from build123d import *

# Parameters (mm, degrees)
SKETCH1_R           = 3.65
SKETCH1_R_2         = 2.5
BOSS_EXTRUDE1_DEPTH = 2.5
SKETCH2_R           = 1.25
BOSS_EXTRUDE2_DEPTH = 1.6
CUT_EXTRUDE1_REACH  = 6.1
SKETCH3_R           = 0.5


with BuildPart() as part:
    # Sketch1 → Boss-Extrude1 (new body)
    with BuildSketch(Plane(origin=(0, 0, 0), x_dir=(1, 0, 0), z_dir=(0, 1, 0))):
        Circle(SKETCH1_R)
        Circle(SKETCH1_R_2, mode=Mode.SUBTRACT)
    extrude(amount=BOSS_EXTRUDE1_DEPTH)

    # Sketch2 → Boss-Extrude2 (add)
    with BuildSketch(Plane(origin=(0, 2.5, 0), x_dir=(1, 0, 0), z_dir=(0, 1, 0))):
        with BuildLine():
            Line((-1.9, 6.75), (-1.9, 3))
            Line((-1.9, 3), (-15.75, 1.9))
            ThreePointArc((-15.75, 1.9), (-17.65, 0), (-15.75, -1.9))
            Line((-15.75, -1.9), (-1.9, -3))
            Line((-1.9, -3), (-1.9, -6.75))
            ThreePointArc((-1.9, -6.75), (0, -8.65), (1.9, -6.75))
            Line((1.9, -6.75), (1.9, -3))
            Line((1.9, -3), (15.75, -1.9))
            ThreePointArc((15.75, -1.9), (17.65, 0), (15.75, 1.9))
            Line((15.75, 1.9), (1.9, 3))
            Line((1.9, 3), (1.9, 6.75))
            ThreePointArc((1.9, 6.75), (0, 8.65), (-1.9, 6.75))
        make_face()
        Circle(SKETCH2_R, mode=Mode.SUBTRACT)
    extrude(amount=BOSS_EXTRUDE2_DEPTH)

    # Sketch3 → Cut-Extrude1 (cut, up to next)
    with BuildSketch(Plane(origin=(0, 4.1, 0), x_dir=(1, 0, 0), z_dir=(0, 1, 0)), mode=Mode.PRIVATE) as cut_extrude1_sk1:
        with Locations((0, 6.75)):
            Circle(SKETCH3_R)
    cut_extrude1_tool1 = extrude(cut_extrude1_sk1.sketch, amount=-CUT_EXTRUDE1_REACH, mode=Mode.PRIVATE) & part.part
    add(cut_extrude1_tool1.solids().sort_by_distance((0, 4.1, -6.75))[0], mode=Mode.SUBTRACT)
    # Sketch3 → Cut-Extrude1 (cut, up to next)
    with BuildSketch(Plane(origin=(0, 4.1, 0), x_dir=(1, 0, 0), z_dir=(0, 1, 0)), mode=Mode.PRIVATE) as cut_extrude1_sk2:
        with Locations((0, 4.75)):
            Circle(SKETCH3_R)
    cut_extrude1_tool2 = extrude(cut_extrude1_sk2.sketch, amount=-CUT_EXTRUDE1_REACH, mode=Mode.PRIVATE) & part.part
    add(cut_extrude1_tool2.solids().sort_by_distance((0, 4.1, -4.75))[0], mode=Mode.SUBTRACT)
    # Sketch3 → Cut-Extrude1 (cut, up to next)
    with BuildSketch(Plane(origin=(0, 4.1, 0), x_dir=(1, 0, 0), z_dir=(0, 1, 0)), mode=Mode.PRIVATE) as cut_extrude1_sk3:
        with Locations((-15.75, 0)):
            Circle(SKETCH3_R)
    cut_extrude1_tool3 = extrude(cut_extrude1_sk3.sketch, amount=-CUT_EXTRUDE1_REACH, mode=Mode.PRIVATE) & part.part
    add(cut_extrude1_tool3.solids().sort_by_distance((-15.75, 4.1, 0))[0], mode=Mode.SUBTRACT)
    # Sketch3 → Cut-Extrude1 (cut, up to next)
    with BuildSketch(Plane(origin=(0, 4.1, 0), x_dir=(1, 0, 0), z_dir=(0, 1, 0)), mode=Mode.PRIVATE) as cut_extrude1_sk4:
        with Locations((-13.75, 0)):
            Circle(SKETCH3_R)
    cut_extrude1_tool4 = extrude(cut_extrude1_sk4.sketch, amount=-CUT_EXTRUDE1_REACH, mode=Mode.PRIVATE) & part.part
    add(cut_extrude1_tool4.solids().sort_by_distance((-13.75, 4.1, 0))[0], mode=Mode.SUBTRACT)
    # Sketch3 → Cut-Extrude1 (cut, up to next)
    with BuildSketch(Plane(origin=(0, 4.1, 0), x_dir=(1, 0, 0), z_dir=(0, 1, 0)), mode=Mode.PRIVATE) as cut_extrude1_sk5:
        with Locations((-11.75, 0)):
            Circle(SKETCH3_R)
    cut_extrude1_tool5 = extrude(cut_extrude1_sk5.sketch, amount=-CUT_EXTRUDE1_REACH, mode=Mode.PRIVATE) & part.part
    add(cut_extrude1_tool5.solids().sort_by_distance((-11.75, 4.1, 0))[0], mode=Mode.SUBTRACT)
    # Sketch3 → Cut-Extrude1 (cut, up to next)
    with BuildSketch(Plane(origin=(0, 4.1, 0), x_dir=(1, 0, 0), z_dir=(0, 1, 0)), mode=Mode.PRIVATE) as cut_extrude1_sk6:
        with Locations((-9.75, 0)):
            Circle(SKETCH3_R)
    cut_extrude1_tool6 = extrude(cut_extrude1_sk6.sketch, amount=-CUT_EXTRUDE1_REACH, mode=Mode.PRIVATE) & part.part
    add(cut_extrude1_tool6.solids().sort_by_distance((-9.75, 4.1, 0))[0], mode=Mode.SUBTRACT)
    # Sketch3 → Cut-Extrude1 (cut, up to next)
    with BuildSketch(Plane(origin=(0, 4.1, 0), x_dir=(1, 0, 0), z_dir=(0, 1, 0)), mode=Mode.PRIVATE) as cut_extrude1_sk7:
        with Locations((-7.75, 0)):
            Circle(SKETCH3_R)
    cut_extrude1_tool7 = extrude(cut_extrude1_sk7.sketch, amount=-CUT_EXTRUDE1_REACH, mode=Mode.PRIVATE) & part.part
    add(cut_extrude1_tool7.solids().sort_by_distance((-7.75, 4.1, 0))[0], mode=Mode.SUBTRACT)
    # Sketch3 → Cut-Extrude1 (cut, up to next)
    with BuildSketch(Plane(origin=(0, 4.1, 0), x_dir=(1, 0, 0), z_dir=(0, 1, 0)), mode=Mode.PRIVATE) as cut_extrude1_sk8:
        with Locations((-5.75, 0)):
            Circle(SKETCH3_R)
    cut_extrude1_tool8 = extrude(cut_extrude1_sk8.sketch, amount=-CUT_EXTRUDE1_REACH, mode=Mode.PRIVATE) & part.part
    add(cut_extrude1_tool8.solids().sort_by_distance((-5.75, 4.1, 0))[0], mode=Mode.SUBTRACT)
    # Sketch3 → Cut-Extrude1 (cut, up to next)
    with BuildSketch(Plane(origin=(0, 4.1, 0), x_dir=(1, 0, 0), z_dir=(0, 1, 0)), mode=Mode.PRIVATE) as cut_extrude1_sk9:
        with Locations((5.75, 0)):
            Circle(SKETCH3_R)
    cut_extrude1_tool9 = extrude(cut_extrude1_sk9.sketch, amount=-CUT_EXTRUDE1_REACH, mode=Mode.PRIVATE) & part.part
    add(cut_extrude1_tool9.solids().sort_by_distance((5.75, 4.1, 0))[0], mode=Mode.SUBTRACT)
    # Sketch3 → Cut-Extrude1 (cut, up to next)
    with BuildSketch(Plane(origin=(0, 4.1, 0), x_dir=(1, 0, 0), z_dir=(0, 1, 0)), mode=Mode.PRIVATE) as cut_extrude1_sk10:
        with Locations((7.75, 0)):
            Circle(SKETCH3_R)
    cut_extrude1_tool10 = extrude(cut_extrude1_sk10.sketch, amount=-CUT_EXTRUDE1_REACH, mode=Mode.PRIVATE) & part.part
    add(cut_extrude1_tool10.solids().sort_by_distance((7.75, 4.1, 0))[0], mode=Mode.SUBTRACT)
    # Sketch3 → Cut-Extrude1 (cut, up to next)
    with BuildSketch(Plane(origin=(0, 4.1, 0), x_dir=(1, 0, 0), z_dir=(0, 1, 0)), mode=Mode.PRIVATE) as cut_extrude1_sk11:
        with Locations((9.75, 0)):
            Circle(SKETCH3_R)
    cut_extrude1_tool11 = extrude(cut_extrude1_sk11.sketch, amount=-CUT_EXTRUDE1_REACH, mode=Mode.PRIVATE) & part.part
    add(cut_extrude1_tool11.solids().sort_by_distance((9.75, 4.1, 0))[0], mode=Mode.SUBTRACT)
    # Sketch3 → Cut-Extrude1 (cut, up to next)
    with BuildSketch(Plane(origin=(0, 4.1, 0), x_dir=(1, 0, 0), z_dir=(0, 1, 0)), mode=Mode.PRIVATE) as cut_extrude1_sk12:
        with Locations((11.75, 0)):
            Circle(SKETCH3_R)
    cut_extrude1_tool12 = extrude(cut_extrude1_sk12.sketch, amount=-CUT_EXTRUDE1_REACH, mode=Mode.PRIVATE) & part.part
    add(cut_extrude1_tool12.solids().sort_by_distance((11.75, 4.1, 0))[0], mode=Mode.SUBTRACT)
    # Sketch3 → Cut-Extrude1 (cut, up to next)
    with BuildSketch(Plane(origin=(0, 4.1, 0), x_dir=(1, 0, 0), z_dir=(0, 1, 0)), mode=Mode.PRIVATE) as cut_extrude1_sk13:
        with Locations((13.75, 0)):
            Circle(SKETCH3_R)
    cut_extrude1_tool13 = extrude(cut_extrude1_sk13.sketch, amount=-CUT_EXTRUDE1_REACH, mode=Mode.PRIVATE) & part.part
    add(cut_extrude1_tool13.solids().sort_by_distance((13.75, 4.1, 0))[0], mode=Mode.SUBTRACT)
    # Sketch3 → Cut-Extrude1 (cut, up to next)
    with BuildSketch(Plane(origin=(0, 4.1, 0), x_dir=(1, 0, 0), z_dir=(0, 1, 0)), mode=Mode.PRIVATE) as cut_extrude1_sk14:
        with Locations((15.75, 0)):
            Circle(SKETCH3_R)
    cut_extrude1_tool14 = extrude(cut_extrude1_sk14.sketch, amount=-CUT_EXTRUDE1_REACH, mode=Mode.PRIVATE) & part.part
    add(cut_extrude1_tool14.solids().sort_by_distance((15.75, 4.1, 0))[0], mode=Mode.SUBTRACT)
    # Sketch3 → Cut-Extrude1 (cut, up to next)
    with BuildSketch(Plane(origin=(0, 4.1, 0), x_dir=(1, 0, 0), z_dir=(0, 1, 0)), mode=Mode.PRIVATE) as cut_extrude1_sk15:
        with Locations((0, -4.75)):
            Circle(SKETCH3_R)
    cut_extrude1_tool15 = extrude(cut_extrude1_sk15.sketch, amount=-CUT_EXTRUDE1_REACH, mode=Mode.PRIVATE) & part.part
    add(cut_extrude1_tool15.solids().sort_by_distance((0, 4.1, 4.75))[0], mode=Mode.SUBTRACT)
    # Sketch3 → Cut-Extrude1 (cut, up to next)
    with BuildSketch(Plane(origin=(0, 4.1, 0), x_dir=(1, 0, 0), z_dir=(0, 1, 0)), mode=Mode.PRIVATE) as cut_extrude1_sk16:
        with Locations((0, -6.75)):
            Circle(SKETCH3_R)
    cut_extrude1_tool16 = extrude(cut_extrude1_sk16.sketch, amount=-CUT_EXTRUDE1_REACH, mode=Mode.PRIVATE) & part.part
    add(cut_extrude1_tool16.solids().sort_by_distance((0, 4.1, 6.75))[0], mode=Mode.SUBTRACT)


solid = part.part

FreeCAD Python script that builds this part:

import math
import FreeCAD as App
import Part
import Sketcher
from FreeCAD import Vector
Q = App.Units.Quantity

doc = App.newDocument("Part")
body = doc.addObject("PartDesign::Body", "Body")

# Sketch on XZ plane
sketch1 = body.newObject("Sketcher::SketchObject", "Sketch")
sketch1.AttachmentSupport = (doc.getObject("XZ_Plane"), [""])
sketch1.MapMode = "FlatFace"
sketch1.addGeometry(Part.Circle(Vector(0, 0, 0), Vector(0, 0, 1), 3.6), False)
sketch1.addGeometry(Part.Circle(Vector(0, 0, 0), Vector(0, 0, 1), 2.5), False)
sketch1.addConstraint(Sketcher.Constraint("Coincident", 0, 3, -1, 1))
sketch1.addConstraint(Sketcher.Constraint("Coincident", 1, 3, -1, 1))
sketch1.addConstraint(Sketcher.Constraint("Diameter", 1, Q("5 mm")))
sketch1.addConstraint(Sketcher.Constraint("Diameter", 0, Q("7.3 mm")))
pad1 = body.newObject("PartDesign::Pad", "Pad")
pad1.Profile = sketch1
pad1.Length = 2.5
pad1.Reversed = True

# Sketch on XZ plane
sketch2 = body.newObject("Sketcher::SketchObject", "Sketch001")
sketch2.AttachmentSupport = (doc.getObject("XZ_Plane"), [""])
sketch2.MapMode = "FlatFace"
sketch2.AttachmentOffset = App.Placement(Vector(0, 0, -2.5), App.Rotation())
sketch2.addGeometry(Part.LineSegment(Vector(-1.9, -6.8, 0), Vector(-1.9, -3, 0)), False)
sketch2.addGeometry(Part.LineSegment(Vector(-1.9, -3, 0), Vector(-15.8, -1.9, 0)), False)
sketch2.addGeometry(Part.ArcOfCircle(Part.Circle(Vector(-15.8, 0, 0), Vector(0, 0, 1), 1.9), math.radians(90), math.radians(270)), False)
sketch2.addGeometry(Part.LineSegment(Vector(-15.8, 1.9, 0), Vector(-1.9, 3, 0)), False)
sketch2.addGeometry(Part.LineSegment(Vector(-1.9, 3, 0), Vector(-1.9, 6.8, 0)), False)
sketch2.addGeometry(Part.ArcOfCircle(Part.Circle(Vector(0, 6.8, 0), Vector(0, 0, 1), 1.9), math.radians(0), math.radians(180)), False)
sketch2.addGeometry(Part.LineSegment(Vector(1.9, 6.8, 0), Vector(1.9, 3, 0)), False)
sketch2.addGeometry(Part.LineSegment(Vector(1.9, 3, 0), Vector(15.8, 1.9, 0)), False)
sketch2.addGeometry(Part.ArcOfCircle(Part.Circle(Vector(15.8, 0, 0), Vector(0, 0, 1), 1.9), math.radians(-90), math.radians(90)), False)
sketch2.addGeometry(Part.LineSegment(Vector(15.8, -1.9, 0), Vector(1.9, -3, 0)), False)
sketch2.addGeometry(Part.LineSegment(Vector(1.9, -3, 0), Vector(1.9, -6.8, 0)), False)
sketch2.addGeometry(Part.ArcOfCircle(Part.Circle(Vector(0, -6.8, 0), Vector(0, 0, 1), 1.9), math.radians(180), math.radians(360)), False)
sketch2.addGeometry(Part.Circle(Vector(0, 0, 0), Vector(0, 0, 1), 1.2), False)
sketch2.addConstraint(Sketcher.Constraint("Coincident", 0, 2, 1, 1))
sketch2.addConstraint(Sketcher.Constraint("Coincident", 1, 2, 2, 2))
sketch2.addConstraint(Sketcher.Constraint("Coincident", 2, 1, 3, 1))
sketch2.addConstraint(Sketcher.Constraint("Coincident", 3, 2, 4, 1))
sketch2.addConstraint(Sketcher.Constraint("Tangent", 4, 2, 5, 2))
sketch2.addConstraint(Sketcher.Constraint("Tangent", 5, 1, 6, 1))
sketch2.addConstraint(Sketcher.Constraint("Coincident", 6, 2, 7, 1))
sketch2.addConstraint(Sketcher.Constraint("Coincident", 7, 2, 8, 2))
sketch2.addConstraint(Sketcher.Constraint("Coincident", 8, 1, 9, 1))
sketch2.addConstraint(Sketcher.Constraint("Coincident", 9, 2, 10, 1))
sketch2.addConstraint(Sketcher.Constraint("Tangent", 10, 2, 11, 2))
sketch2.addConstraint(Sketcher.Constraint("Tangent", 11, 1, 0, 1))
sketch2.addConstraint(Sketcher.Constraint("Vertical", 0))
sketch2.addConstraint(Sketcher.Constraint("Vertical", 4))
sketch2.addConstraint(Sketcher.Constraint("Vertical", 6))
sketch2.addConstraint(Sketcher.Constraint("Vertical", 10))
sketch2.addConstraint(Sketcher.Constraint("Coincident", 12, 3, -1, 1))
sketch2.addConstraint(Sketcher.Constraint("Equal", 2, 5))
sketch2.addConstraint(Sketcher.Constraint("Equal", 5, 8))
sketch2.addConstraint(Sketcher.Constraint("Equal", 8, 11))
sketch2.addConstraint(Sketcher.Constraint("Symmetric", 2, 3, 8, 3, -1, 1))
sketch2.addConstraint(Sketcher.Constraint("Symmetric", 5, 3, 11, 3, -1, 1))
sketch2.addConstraint(Sketcher.Constraint("Symmetric", 3, 2, 6, 2, -2))
sketch2.addConstraint(Sketcher.Constraint("Symmetric", 2, 1, 7, 2, -2))
sketch2.addConstraint(Sketcher.Constraint("Parallel", 1, 7))
sketch2.addConstraint(Sketcher.Constraint("Parallel", 3, 9))
sketch2.addConstraint(Sketcher.Constraint("Horizontal", 0, 2, 9, 2))
sketch2.addConstraint(Sketcher.Constraint("Vertical", 2, 3, 1, 2))
sketch2.addConstraint(Sketcher.Constraint("Vertical", 1, 2, 2, 1))
sketch2.addConstraint(Sketcher.Constraint("Diameter", 12, Q("2.5 mm")))
sketch2.addConstraint(Sketcher.Constraint("Radius", 2, Q("1.9 mm")))
sketch2.addConstraint(Sketcher.Constraint("DistanceY", 0, 2, -1, 1, Q("3 mm")))
sketch2.addConstraint(Sketcher.Constraint("DistanceY", 0, 1, 0, 2, Q("3.75 mm")))
sketch2.addConstraint(Sketcher.Constraint("DistanceX", 2, 3, 8, 3, Q("31.5 mm")))
pad2 = body.newObject("PartDesign::Pad", "Pad001")
pad2.Profile = sketch2
pad2.Length = 1.6
pad2.Reversed = True

# Sketch on XZ plane
sketch3 = body.newObject("Sketcher::SketchObject", "Sketch002")
sketch3.AttachmentSupport = (doc.getObject("XZ_Plane"), [""])
sketch3.MapMode = "FlatFace"
sketch3.AttachmentOffset = App.Placement(Vector(0, 0, -4.1), App.Rotation())
sketch3.addGeometry(Part.Circle(Vector(0, -6.8, 0), Vector(0, 0, 1), 0.5), False)
sketch3.addConstraint(Sketcher.Constraint("PointOnObject", 0, 3, -2))
sketch3.addConstraint(Sketcher.Constraint("Diameter", 0, Q("1 mm")))
sketch3.addConstraint(Sketcher.Constraint("DistanceY", 0, 3, -1, 1, Q("6.75 mm")))
pocket1 = body.newObject("PartDesign::Pocket", "Pocket")
pocket1.Profile = sketch3
pocket1.Type = "UpToFirst"
pocket1.Reversed = True

# Sketch on XZ plane
sketch4 = body.newObject("Sketcher::SketchObject", "Sketch003")
sketch4.AttachmentSupport = (doc.getObject("XZ_Plane"), [""])
sketch4.MapMode = "FlatFace"
sketch4.AttachmentOffset = App.Placement(Vector(0, 0, -4.1), App.Rotation())
sketch4.addGeometry(Part.Circle(Vector(0, -4.8, 0), Vector(0, 0, 1), 0.5), False)
sketch4.addConstraint(Sketcher.Constraint("PointOnObject", 0, 3, -2))
sketch4.addConstraint(Sketcher.Constraint("Diameter", 0, Q("1 mm")))
sketch4.addConstraint(Sketcher.Constraint("DistanceY", 0, 3, -1, 1, Q("4.75 mm")))
pocket2 = body.newObject("PartDesign::Pocket", "Pocket001")
pocket2.Profile = sketch4
pocket2.Type = "UpToFirst"
pocket2.Reversed = True

# Sketch on XZ plane
sketch5 = body.newObject("Sketcher::SketchObject", "Sketch004")
sketch5.AttachmentSupport = (doc.getObject("XZ_Plane"), [""])
sketch5.MapMode = "FlatFace"
sketch5.AttachmentOffset = App.Placement(Vector(0, 0, -4.1), App.Rotation())
sketch5.addGeometry(Part.Circle(Vector(-15.8, 0, 0), Vector(0, 0, 1), 0.5), False)
sketch5.addConstraint(Sketcher.Constraint("PointOnObject", 0, 3, -1))
sketch5.addConstraint(Sketcher.Constraint("Diameter", 0, Q("1 mm")))
sketch5.addConstraint(Sketcher.Constraint("DistanceX", 0, 3, -1, 1, Q("15.75 mm")))
pocket3 = body.newObject("PartDesign::Pocket", "Pocket002")
pocket3.Profile = sketch5
pocket3.Type = "UpToFirst"
pocket3.Reversed = True

# Sketch on XZ plane
sketch6 = body.newObject("Sketcher::SketchObject", "Sketch005")
sketch6.AttachmentSupport = (doc.getObject("XZ_Plane"), [""])
sketch6.MapMode = "FlatFace"
sketch6.AttachmentOffset = App.Placement(Vector(0, 0, -4.1), App.Rotation())
sketch6.addGeometry(Part.Circle(Vector(-13.8, 0, 0), Vector(0, 0, 1), 0.5), False)
sketch6.addConstraint(Sketcher.Constraint("PointOnObject", 0, 3, -1))
sketch6.addConstraint(Sketcher.Constraint("Diameter", 0, Q("1 mm")))
sketch6.addConstraint(Sketcher.Constraint("DistanceX", 0, 3, -1, 1, Q("13.75 mm")))
pocket4 = body.newObject("PartDesign::Pocket", "Pocket003")
pocket4.Profile = sketch6
pocket4.Type = "UpToFirst"
pocket4.Reversed = True

# Sketch on XZ plane
sketch7 = body.newObject("Sketcher::SketchObject", "Sketch006")
sketch7.AttachmentSupport = (doc.getObject("XZ_Plane"), [""])
sketch7.MapMode = "FlatFace"
sketch7.AttachmentOffset = App.Placement(Vector(0, 0, -4.1), App.Rotation())
sketch7.addGeometry(Part.Circle(Vector(-11.8, 0, 0), Vector(0, 0, 1), 0.5), False)
sketch7.addConstraint(Sketcher.Constraint("PointOnObject", 0, 3, -1))
sketch7.addConstraint(Sketcher.Constraint("Diameter", 0, Q("1 mm")))
sketch7.addConstraint(Sketcher.Constraint("DistanceX", 0, 3, -1, 1, Q("11.75 mm")))
pocket5 = body.newObject("PartDesign::Pocket", "Pocket004")
pocket5.Profile = sketch7
pocket5.Type = "UpToFirst"
pocket5.Reversed = True

# Sketch on XZ plane
sketch8 = body.newObject("Sketcher::SketchObject", "Sketch007")
sketch8.AttachmentSupport = (doc.getObject("XZ_Plane"), [""])
sketch8.MapMode = "FlatFace"
sketch8.AttachmentOffset = App.Placement(Vector(0, 0, -4.1), App.Rotation())
sketch8.addGeometry(Part.Circle(Vector(-9.8, 0, 0), Vector(0, 0, 1), 0.5), False)
sketch8.addConstraint(Sketcher.Constraint("PointOnObject", 0, 3, -1))
sketch8.addConstraint(Sketcher.Constraint("Diameter", 0, Q("1 mm")))
sketch8.addConstraint(Sketcher.Constraint("DistanceX", 0, 3, -1, 1, Q("9.75 mm")))
pocket6 = body.newObject("PartDesign::Pocket", "Pocket005")
pocket6.Profile = sketch8
pocket6.Type = "UpToFirst"
pocket6.Reversed = True

# Sketch on XZ plane
sketch9 = body.newObject("Sketcher::SketchObject", "Sketch008")
sketch9.AttachmentSupport = (doc.getObject("XZ_Plane"), [""])
sketch9.MapMode = "FlatFace"
sketch9.AttachmentOffset = App.Placement(Vector(0, 0, -4.1), App.Rotation())
sketch9.addGeometry(Part.Circle(Vector(-7.8, 0, 0), Vector(0, 0, 1), 0.5), False)
sketch9.addConstraint(Sketcher.Constraint("PointOnObject", 0, 3, -1))
sketch9.addConstraint(Sketcher.Constraint("Diameter", 0, Q("1 mm")))
sketch9.addConstraint(Sketcher.Constraint("DistanceX", 0, 3, -1, 1, Q("7.75 mm")))
pocket7 = body.newObject("PartDesign::Pocket", "Pocket006")
pocket7.Profile = sketch9
pocket7.Type = "UpToFirst"
pocket7.Reversed = True

# Sketch on XZ plane
sketch10 = body.newObject("Sketcher::SketchObject", "Sketch009")
sketch10.AttachmentSupport = (doc.getObject("XZ_Plane"), [""])
sketch10.MapMode = "FlatFace"
sketch10.AttachmentOffset = App.Placement(Vector(0, 0, -4.1), App.Rotation())
sketch10.addGeometry(Part.Circle(Vector(-5.8, 0, 0), Vector(0, 0, 1), 0.5), False)
sketch10.addConstraint(Sketcher.Constraint("PointOnObject", 0, 3, -1))
sketch10.addConstraint(Sketcher.Constraint("Diameter", 0, Q("1 mm")))
sketch10.addConstraint(Sketcher.Constraint("DistanceX", 0, 3, -1, 1, Q("5.75 mm")))
pocket8 = body.newObject("PartDesign::Pocket", "Pocket007")
pocket8.Profile = sketch10
pocket8.Type = "UpToFirst"
pocket8.Reversed = True

# Sketch on XZ plane
sketch11 = body.newObject("Sketcher::SketchObject", "Sketch010")
sketch11.AttachmentSupport = (doc.getObject("XZ_Plane"), [""])
sketch11.MapMode = "FlatFace"
sketch11.AttachmentOffset = App.Placement(Vector(0, 0, -4.1), App.Rotation())
sketch11.addGeometry(Part.Circle(Vector(5.8, 0, 0), Vector(0, 0, 1), 0.5), False)
sketch11.addConstraint(Sketcher.Constraint("PointOnObject", 0, 3, -1))
sketch11.addConstraint(Sketcher.Constraint("Diameter", 0, Q("1 mm")))
sketch11.addConstraint(Sketcher.Constraint("DistanceX", -1, 1, 0, 3, Q("5.75 mm")))
pocket9 = body.newObject("PartDesign::Pocket", "Pocket008")
pocket9.Profile = sketch11
pocket9.Type = "UpToFirst"
pocket9.Reversed = True

# Sketch on XZ plane
sketch12 = body.newObject("Sketcher::SketchObject", "Sketch011")
sketch12.AttachmentSupport = (doc.getObject("XZ_Plane"), [""])
sketch12.MapMode = "FlatFace"
sketch12.AttachmentOffset = App.Placement(Vector(0, 0, -4.1), App.Rotation())
sketch12.addGeometry(Part.Circle(Vector(7.8, 0, 0), Vector(0, 0, 1), 0.5), False)
sketch12.addConstraint(Sketcher.Constraint("PointOnObject", 0, 3, -1))
sketch12.addConstraint(Sketcher.Constraint("Diameter", 0, Q("1 mm")))
sketch12.addConstraint(Sketcher.Constraint("DistanceX", -1, 1, 0, 3, Q("7.75 mm")))
pocket10 = body.newObject("PartDesign::Pocket", "Pocket009")
pocket10.Profile = sketch12
pocket10.Type = "UpToFirst"
pocket10.Reversed = True

# Sketch on XZ plane
sketch13 = body.newObject("Sketcher::SketchObject", "Sketch012")
sketch13.AttachmentSupport = (doc.getObject("XZ_Plane"), [""])
sketch13.MapMode = "FlatFace"
sketch13.AttachmentOffset = App.Placement(Vector(0, 0, -4.1), App.Rotation())
sketch13.addGeometry(Part.Circle(Vector(9.8, 0, 0), Vector(0, 0, 1), 0.5), False)
sketch13.addConstraint(Sketcher.Constraint("PointOnObject", 0, 3, -1))
sketch13.addConstraint(Sketcher.Constraint("Diameter", 0, Q("1 mm")))
sketch13.addConstraint(Sketcher.Constraint("DistanceX", -1, 1, 0, 3, Q("9.75 mm")))
pocket11 = body.newObject("PartDesign::Pocket", "Pocket010")
pocket11.Profile = sketch13
pocket11.Type = "UpToFirst"
pocket11.Reversed = True

# Sketch on XZ plane
sketch14 = body.newObject("Sketcher::SketchObject", "Sketch013")
sketch14.AttachmentSupport = (doc.getObject("XZ_Plane"), [""])
sketch14.MapMode = "FlatFace"
sketch14.AttachmentOffset = App.Placement(Vector(0, 0, -4.1), App.Rotation())
sketch14.addGeometry(Part.Circle(Vector(11.8, 0, 0), Vector(0, 0, 1), 0.5), False)
sketch14.addConstraint(Sketcher.Constraint("PointOnObject", 0, 3, -1))
sketch14.addConstraint(Sketcher.Constraint("Diameter", 0, Q("1 mm")))
sketch14.addConstraint(Sketcher.Constraint("DistanceX", -1, 1, 0, 3, Q("11.75 mm")))
pocket12 = body.newObject("PartDesign::Pocket", "Pocket011")
pocket12.Profile = sketch14
pocket12.Type = "UpToFirst"
pocket12.Reversed = True

# Sketch on XZ plane
sketch15 = body.newObject("Sketcher::SketchObject", "Sketch014")
sketch15.AttachmentSupport = (doc.getObject("XZ_Plane"), [""])
sketch15.MapMode = "FlatFace"
sketch15.AttachmentOffset = App.Placement(Vector(0, 0, -4.1), App.Rotation())
sketch15.addGeometry(Part.Circle(Vector(13.8, 0, 0), Vector(0, 0, 1), 0.5), False)
sketch15.addConstraint(Sketcher.Constraint("PointOnObject", 0, 3, -1))
sketch15.addConstraint(Sketcher.Constraint("Diameter", 0, Q("1 mm")))
sketch15.addConstraint(Sketcher.Constraint("DistanceX", -1, 1, 0, 3, Q("13.75 mm")))
pocket13 = body.newObject("PartDesign::Pocket", "Pocket012")
pocket13.Profile = sketch15
pocket13.Type = "UpToFirst"
pocket13.Reversed = True

# Sketch on XZ plane
sketch16 = body.newObject("Sketcher::SketchObject", "Sketch015")
sketch16.AttachmentSupport = (doc.getObject("XZ_Plane"), [""])
sketch16.MapMode = "FlatFace"
sketch16.AttachmentOffset = App.Placement(Vector(0, 0, -4.1), App.Rotation())
sketch16.addGeometry(Part.Circle(Vector(15.8, 0, 0), Vector(0, 0, 1), 0.5), False)
sketch16.addConstraint(Sketcher.Constraint("PointOnObject", 0, 3, -1))
sketch16.addConstraint(Sketcher.Constraint("Diameter", 0, Q("1 mm")))
sketch16.addConstraint(Sketcher.Constraint("DistanceX", -1, 1, 0, 3, Q("15.75 mm")))
pocket14 = body.newObject("PartDesign::Pocket", "Pocket013")
pocket14.Profile = sketch16
pocket14.Type = "UpToFirst"
pocket14.Reversed = True

# Sketch on XZ plane
sketch17 = body.newObject("Sketcher::SketchObject", "Sketch016")
sketch17.AttachmentSupport = (doc.getObject("XZ_Plane"), [""])
sketch17.MapMode = "FlatFace"
sketch17.AttachmentOffset = App.Placement(Vector(0, 0, -4.1), App.Rotation())
sketch17.addGeometry(Part.Circle(Vector(0, 4.8, 0), Vector(0, 0, 1), 0.5), False)
sketch17.addConstraint(Sketcher.Constraint("PointOnObject", 0, 3, -2))
sketch17.addConstraint(Sketcher.Constraint("Diameter", 0, Q("1 mm")))
sketch17.addConstraint(Sketcher.Constraint("DistanceY", -1, 1, 0, 3, Q("4.75 mm")))
pocket15 = body.newObject("PartDesign::Pocket", "Pocket014")
pocket15.Profile = sketch17
pocket15.Type = "UpToFirst"
pocket15.Reversed = True

# Sketch on XZ plane
sketch18 = body.newObject("Sketcher::SketchObject", "Sketch017")
sketch18.AttachmentSupport = (doc.getObject("XZ_Plane"), [""])
sketch18.MapMode = "FlatFace"
sketch18.AttachmentOffset = App.Placement(Vector(0, 0, -4.1), App.Rotation())
sketch18.addGeometry(Part.Circle(Vector(0, 6.8, 0), Vector(0, 0, 1), 0.5), False)
sketch18.addConstraint(Sketcher.Constraint("PointOnObject", 0, 3, -2))
sketch18.addConstraint(Sketcher.Constraint("Diameter", 0, Q("1 mm")))
sketch18.addConstraint(Sketcher.Constraint("DistanceY", -1, 1, 0, 3, Q("6.75 mm")))
pocket16 = body.newObject("PartDesign::Pocket", "Pocket015")
pocket16.Profile = sketch18
pocket16.Type = "UpToFirst"
pocket16.Reversed = True

doc.recompute()
